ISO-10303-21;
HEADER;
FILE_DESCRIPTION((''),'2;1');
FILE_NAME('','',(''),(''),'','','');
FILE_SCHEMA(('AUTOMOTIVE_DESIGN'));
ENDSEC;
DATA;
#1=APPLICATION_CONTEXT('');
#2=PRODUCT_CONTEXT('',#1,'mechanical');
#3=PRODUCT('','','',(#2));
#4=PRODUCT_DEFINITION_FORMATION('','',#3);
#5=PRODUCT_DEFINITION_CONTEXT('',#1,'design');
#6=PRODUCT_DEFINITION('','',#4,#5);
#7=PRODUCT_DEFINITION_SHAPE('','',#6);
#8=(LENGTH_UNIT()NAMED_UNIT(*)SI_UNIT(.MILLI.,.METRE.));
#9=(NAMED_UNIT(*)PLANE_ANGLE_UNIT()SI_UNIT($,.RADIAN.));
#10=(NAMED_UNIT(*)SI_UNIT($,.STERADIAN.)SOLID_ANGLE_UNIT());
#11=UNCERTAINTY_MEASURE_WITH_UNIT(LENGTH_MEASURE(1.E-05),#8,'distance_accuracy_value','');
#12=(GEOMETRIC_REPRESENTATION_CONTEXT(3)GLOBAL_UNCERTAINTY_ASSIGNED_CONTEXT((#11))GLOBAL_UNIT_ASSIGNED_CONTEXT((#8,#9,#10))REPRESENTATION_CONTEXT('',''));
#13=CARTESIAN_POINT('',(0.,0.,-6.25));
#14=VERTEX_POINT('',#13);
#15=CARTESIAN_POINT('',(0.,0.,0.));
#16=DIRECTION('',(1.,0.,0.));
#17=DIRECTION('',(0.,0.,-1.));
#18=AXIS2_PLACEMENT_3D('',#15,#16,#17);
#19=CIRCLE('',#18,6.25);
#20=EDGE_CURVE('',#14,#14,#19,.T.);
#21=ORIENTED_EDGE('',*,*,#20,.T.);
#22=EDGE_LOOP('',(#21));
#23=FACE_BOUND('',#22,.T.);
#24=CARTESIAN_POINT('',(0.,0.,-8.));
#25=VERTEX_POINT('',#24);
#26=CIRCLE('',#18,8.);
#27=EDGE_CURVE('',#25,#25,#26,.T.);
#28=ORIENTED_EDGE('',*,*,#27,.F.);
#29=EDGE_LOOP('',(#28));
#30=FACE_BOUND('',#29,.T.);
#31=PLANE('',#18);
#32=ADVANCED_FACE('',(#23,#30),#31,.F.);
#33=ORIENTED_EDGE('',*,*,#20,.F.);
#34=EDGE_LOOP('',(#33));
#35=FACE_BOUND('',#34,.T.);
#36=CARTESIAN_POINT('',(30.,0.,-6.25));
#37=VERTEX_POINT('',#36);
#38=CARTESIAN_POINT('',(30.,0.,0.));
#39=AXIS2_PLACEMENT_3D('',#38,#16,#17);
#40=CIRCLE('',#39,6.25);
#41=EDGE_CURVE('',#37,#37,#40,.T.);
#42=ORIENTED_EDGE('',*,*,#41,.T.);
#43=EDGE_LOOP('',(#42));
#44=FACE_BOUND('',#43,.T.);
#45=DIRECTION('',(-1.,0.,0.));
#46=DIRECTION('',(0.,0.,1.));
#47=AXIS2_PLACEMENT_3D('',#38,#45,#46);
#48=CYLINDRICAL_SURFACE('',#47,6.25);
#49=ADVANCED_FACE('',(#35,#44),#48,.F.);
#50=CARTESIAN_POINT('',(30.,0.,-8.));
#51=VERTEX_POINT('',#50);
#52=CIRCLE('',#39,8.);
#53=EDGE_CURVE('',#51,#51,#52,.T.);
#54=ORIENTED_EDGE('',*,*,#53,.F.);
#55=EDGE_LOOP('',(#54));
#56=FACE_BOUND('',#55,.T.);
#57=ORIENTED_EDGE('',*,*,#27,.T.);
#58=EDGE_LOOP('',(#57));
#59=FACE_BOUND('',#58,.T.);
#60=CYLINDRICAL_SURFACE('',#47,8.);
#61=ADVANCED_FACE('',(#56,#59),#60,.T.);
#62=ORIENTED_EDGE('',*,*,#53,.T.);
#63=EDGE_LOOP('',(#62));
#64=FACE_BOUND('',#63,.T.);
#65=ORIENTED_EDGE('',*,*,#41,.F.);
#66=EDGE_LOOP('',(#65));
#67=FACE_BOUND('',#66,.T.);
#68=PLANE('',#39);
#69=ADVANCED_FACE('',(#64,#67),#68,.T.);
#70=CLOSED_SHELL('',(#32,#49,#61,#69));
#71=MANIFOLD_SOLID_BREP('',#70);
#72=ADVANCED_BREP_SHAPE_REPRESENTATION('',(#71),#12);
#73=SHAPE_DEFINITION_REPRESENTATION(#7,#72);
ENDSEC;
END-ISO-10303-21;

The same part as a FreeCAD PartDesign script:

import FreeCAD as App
import Part
import Sketcher
from FreeCAD import Vector
Q = App.Units.Quantity

doc = App.newDocument("Part")
body = doc.addObject("PartDesign::Body", "Body")

# Sketch on YZ plane
sketch1 = body.newObject("Sketcher::SketchObject", "Sketch")
sketch1.AttachmentSupport = (doc.getObject("YZ_Plane"), [""])
sketch1.MapMode = "FlatFace"
sketch1.addGeometry([
    Part.Circle(Vector(0, 0, 0), Vector(0, 0, 1), 8),
    Part.Circle(Vector(0, 0, 0), Vector(0, 0, 1), 6),
], False)
sketch1.addConstraint([
    Sketcher.Constraint("Coincident", 0, 3, -1, 1),
    Sketcher.Constraint("Coincident", 1, 3, -1, 1),
    Sketcher.Constraint("Diameter", 0, Q("16 mm")),
    Sketcher.Constraint("Diameter", 1, Q("12.5 mm")),
])
pad1 = body.newObject("PartDesign::Pad", "Pad")
pad1.Profile = sketch1
pad1.Length = 30

doc.recompute()
